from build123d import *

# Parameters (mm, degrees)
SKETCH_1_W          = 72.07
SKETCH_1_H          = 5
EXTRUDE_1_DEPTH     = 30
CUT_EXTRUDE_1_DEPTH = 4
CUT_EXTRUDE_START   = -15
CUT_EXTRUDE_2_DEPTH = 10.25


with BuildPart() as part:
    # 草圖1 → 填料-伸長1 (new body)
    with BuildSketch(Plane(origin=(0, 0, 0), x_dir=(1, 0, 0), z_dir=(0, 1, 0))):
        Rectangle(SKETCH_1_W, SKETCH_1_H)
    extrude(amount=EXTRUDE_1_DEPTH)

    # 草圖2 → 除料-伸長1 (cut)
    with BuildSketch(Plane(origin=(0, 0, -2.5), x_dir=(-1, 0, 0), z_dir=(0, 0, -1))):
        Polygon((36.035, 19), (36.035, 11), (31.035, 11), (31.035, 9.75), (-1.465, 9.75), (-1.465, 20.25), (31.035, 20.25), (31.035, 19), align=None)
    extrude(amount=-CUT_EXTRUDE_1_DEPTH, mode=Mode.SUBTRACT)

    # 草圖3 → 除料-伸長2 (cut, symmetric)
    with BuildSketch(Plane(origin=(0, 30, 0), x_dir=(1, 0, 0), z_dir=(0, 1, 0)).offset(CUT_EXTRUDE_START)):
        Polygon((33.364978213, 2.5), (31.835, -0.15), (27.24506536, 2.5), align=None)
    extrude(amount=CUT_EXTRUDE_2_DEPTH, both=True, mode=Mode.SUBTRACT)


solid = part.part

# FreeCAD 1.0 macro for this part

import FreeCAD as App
import Part
import Sketcher

V = App.Vector
Q = App.Units.Quantity

doc = App.newDocument("Part")
body = doc.addObject("PartDesign::Body", "Body")

# Sketch on XZ plane
sketch1 = body.newObject("Sketcher::SketchObject", "Sketch")
sketch1.AttachmentSupport = (doc.getObject("XZ_Plane"), [""])
sketch1.MapMode = "FlatFace"
sketch1.addGeometry([
    Part.LineSegment(V(-36, -2, 0), V(-36, 2, 0)),
    Part.LineSegment(V(-36, 2, 0), V(36, 2, 0)),
    Part.LineSegment(V(36, 2, 0), V(36, -2, 0)),
    Part.LineSegment(V(36, -2, 0), V(-36, -2, 0)),
], False)
sketch1.addConstraint([
    Sketcher.Constraint("Coincident", 0, 2, 1, 1),
    Sketcher.Constraint("Coincident", 1, 2, 2, 1),
    Sketcher.Constraint("Coincident", 2, 2, 3, 1),
    Sketcher.Constraint("Coincident", 3, 2, 0, 1),
    Sketcher.Constraint("Vertical", 0),
    Sketcher.Constraint("Horizontal", 1),
    Sketcher.Constraint("Vertical", 2),
    Sketcher.Constraint("Horizontal", 3),
    Sketcher.Constraint("Symmetric", 0, 2, 2, 2, -1, 1),
    Sketcher.Constraint("DistanceY", 0, 1, 0, 2, 5.0),
    Sketcher.Constraint("DistanceX", 1, 1, 1, 2, 72.07),
])
pad1 = body.newObject("PartDesign::Pad", "Pad")
pad1.Profile = sketch1
pad1.Length = 30
pad1.Reversed = True

# Sketch on XY plane
sketch2 = body.newObject("Sketcher::SketchObject", "Sketch001")
sketch2.AttachmentSupport = (doc.getObject("XY_Plane"), [""])
sketch2.MapMode = "FlatFace"
sketch2.AttachmentOffset = App.Placement(V(0, 0, -2.5), App.Rotation())
sketch2.addGeometry([
    Part.LineSegment(V(-36, 11, 0), V(-36, 19, 0)),  # 0
    Part.LineSegment(V(-36, 19, 0), V(-31, 19, 0)),  # 1
    Part.LineSegment(V(-31, 19, 0), V(-31, 20.2, 0)),  # 2
    Part.LineSegment(V(-31, 20.2, 0), V(1.5, 20.2, 0)),  # 3
    Part.LineSegment(V(1.5, 20.2, 0), V(1.5, 9.8, 0)),  # 4
    Part.LineSegment(V(1.5, 9.8, 0), V(-31, 9.8, 0)),  # 5
    Part.LineSegment(V(-31, 9.8, 0), V(-31, 11, 0)),  # 6
    Part.LineSegment(V(-31, 11, 0), V(-36, 11, 0)),  # 7
], False)
sketch2.addConstraint([
    Sketcher.Constraint("Coincident", 0, 2, 1, 1),
    Sketcher.Constraint("Coincident", 1, 2, 2, 1),
    Sketcher.Constraint("Coincident", 2, 2, 3, 1),
    Sketcher.Constraint("Coincident", 3, 2, 4, 1),
    Sketcher.Constraint("Coincident", 4, 2, 5, 1),
    Sketcher.Constraint("Coincident", 5, 2, 6, 1),
    Sketcher.Constraint("Coincident", 6, 2, 7, 1),
    Sketcher.Constraint("Coincident", 7, 2, 0, 1),
    Sketcher.Constraint("Vertical", 0),
    Sketcher.Constraint("Horizontal", 1),
    Sketcher.Constraint("Vertical", 2),
    Sketcher.Constraint("Horizontal", 3),
    Sketcher.Constraint("Vertical", 4),
    Sketcher.Constraint("Horizontal", 5),
    Sketcher.Constraint("Vertical", 6),
    Sketcher.Constraint("Horizontal", 7),
    Sketcher.Constraint("Vertical", 2, 2, 5, 2),
    Sketcher.Constraint("Equal", 2, 6),
    Sketcher.Constraint("DistanceX", 1, 1, 1, 2, 5.0),
    Sketcher.Constraint("DistanceY", 0, 1, 0, 2, 8.0),
    Sketcher.Constraint("DistanceX", 3, 1, 3, 2, 32.5),
    Sketcher.Constraint("DistanceY", 4, 2, 4, 1, 10.5),
    Sketcher.Constraint("DistanceY", -1, 1, 0, 2, 19.0),
    Sketcher.Constraint("DistanceX", 0, 2, -1, 1, 36.035),
])
pocket1 = body.newObject("PartDesign::Pocket", "Pocket")
pocket1.Profile = sketch2
pocket1.Length = 4
pocket1.Reversed = True

# Sketch on XZ plane
sketch3 = body.newObject("Sketcher::SketchObject", "Sketch002")
sketch3.AttachmentSupport = (doc.getObject("XZ_Plane"), [""])
sketch3.MapMode = "FlatFace"
sketch3.AttachmentOffset = App.Placement(V(0, 0, -15), App.Rotation())
sketch3.addGeometry([
    Part.LineSegment(V(31.8, 0.1, 0), V(33.4, -2.5, 0)),
    Part.LineSegment(V(33.4, -2.5, 0), V(27.2, -2.5, 0)),
    Part.LineSegment(V(27.2, -2.5, 0), V(31.8, 0.1, 0)),
], False)
sketch3.addConstraint([
    Sketcher.Constraint("Coincident", 0, 2, 1, 1),
    Sketcher.Constraint("Coincident", 1, 2, 2, 1),
    Sketcher.Constraint("Coincident", 2, 2, 0, 1),
    Sketcher.Constraint("Horizontal", 1),
    Sketcher.Constraint("Perpendicular", 0, 2),
    Sketcher.Constraint("Angle", 0, Q("-60 deg")),
    Sketcher.Constraint("Distance", 2, 5.3),
    Sketcher.Constraint("DistanceY", 0, 2, -1, 1, 2.5),
    Sketcher.Constraint("DistanceX", -1, 1, 2, 2, 31.835),
])
pocket2 = body.newObject("PartDesign::Pocket", "Pocket001")
pocket2.Profile = sketch3
pocket2.Length = 20.5
pocket2.Midplane = True

doc.recompute()
